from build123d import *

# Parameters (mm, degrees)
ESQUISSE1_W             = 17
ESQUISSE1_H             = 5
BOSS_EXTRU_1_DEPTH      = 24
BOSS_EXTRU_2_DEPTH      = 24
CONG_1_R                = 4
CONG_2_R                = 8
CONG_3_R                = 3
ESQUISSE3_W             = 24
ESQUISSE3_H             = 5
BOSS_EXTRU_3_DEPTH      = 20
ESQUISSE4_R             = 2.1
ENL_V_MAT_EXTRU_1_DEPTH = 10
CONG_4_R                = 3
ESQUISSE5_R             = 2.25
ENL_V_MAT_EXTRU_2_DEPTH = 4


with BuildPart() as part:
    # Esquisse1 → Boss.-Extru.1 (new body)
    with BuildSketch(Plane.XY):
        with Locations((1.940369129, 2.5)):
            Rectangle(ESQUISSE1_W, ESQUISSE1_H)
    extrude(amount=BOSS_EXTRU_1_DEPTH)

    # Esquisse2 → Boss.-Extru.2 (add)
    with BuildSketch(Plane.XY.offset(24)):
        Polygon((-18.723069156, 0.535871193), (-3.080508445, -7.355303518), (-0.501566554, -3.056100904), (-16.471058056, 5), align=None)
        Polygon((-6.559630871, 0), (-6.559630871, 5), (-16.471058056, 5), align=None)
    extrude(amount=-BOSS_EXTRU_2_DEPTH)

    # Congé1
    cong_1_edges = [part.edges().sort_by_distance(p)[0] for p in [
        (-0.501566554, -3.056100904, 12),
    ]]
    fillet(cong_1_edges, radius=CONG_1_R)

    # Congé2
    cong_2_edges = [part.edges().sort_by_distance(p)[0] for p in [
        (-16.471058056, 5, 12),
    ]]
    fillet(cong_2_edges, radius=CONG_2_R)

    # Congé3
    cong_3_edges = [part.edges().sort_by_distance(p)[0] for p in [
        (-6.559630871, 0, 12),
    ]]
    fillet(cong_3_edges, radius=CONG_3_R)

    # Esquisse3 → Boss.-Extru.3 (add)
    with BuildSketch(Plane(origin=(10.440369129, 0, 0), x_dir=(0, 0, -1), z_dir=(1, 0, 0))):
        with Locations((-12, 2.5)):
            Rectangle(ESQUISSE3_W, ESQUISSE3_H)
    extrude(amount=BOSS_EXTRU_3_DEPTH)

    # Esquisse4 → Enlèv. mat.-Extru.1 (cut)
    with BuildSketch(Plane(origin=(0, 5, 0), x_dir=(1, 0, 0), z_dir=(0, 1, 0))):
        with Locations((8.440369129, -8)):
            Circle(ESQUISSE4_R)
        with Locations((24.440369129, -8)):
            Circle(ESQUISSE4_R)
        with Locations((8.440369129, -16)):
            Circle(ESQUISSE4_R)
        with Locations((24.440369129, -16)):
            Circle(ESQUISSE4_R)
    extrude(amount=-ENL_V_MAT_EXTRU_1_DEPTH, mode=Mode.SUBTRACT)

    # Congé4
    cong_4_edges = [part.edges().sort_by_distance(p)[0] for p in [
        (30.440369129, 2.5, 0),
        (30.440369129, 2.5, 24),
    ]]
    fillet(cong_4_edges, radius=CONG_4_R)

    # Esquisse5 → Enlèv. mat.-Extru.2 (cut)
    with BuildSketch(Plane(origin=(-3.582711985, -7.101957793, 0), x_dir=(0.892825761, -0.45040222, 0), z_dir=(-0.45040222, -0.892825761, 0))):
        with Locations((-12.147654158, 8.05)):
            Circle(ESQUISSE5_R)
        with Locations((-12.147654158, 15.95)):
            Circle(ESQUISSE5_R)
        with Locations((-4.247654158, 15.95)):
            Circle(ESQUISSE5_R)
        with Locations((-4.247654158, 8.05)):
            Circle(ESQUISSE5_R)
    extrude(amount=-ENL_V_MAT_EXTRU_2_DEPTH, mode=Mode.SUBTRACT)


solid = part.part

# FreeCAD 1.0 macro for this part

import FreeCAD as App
import Part
import Sketcher


def edges_at(feature, points):
    """Names of the edges that pass closest to the given points."""
    edges = feature.Shape.Edges
    near = lambda p: min(range(len(edges)), key=lambda i: edges[i].distToShape(Part.Vertex(*p))[0])
    return sorted({f"Edge{near(p) + 1}" for p in points})

doc = App.newDocument("Part")
body = doc.addObject("PartDesign::Body", "Body")

# Sketch on XY plane
sketch1 = body.newObject("Sketcher::SketchObject", "Sketch")
sketch1.AttachmentSupport = (doc.getObject("XY_Plane"), [""])
sketch1.MapMode = "FlatFace"
sketch1.addGeometry(Part.LineSegment(App.Vector(-7, 5, 0), App.Vector(-7, 0, 0)), False)
sketch1.addGeometry(Part.LineSegment(App.Vector(-7, 0, 0), App.Vector(10, 0, 0)), False)
sketch1.addGeometry(Part.LineSegment(App.Vector(10, 0, 0), App.Vector(10, 5, 0)), False)
sketch1.addGeometry(Part.LineSegment(App.Vector(10, 5, 0), App.Vector(-7, 5, 0)), False)
sketch1.addConstraint(Sketcher.Constraint("Coincident", 0, 2, 1, 1))
sketch1.addConstraint(Sketcher.Constraint("Coincident", 1, 2, 2, 1))
sketch1.addConstraint(Sketcher.Constraint("Coincident", 2, 2, 3, 1))
sketch1.addConstraint(Sketcher.Constraint("Coincident", 3, 2, 0, 1))
sketch1.addConstraint(Sketcher.Constraint("Vertical", 0))
sketch1.addConstraint(Sketcher.Constraint("Horizontal", 1))
sketch1.addConstraint(Sketcher.Constraint("Vertical", 2))
sketch1.addConstraint(Sketcher.Constraint("Horizontal", 3))
sketch1.addConstraint(Sketcher.Constraint("PointOnObject", 0, 2, -1))
sketch1.addConstraint(Sketcher.Constraint("DistanceX", 1, 1, 1, 2, 17.0))
sketch1.addConstraint(Sketcher.Constraint("DistanceY", 0, 2, 0, 1, 5.0))
sketch1.addConstraint(Sketcher.Constraint("DistanceX", 0, 2, -1, 1, 6.559631))
pad1 = body.newObject("PartDesign::Pad", "Pad")
pad1.Profile = sketch1
pad1.Length = 24

# Sketch on XY plane
sketch2 = body.newObject("Sketcher::SketchObject", "Sketch001")
sketch2.AttachmentSupport = (doc.getObject("XY_Plane"), [""])
sketch2.MapMode = "FlatFace"
sketch2.AttachmentOffset = App.Placement(App.Vector(0, 0, 24), App.Rotation())
sketch2.addGeometry(Part.LineSegment(App.Vector(-19, 1, 0), App.Vector(-3, -7, 0)), False)
sketch2.addGeometry(Part.LineSegment(App.Vector(-3, -7, 0), App.Vector(-1, -3, 0)), False)
sketch2.addGeometry(Part.LineSegment(App.Vector(-1, -3, 0), App.Vector(-7, 0, 0)), False)
sketch2.addGeometry(Part.LineSegment(App.Vector(-7, 0, 0), App.Vector(-7, 5, 0)), False)
sketch2.addGeometry(Part.LineSegment(App.Vector(-7, 5, 0), App.Vector(-16, 5, 0)), False)
sketch2.addGeometry(Part.LineSegment(App.Vector(-16, 5, 0), App.Vector(-19, 1, 0)), False)
sketch2.addConstraint(Sketcher.Constraint("Coincident", 0, 2, 1, 1))
sketch2.addConstraint(Sketcher.Constraint("Coincident", 1, 2, 2, 1))
sketch2.addConstraint(Sketcher.Constraint("Coincident", 2, 2, 3, 1))
sketch2.addConstraint(Sketcher.Constraint("Coincident", 3, 2, 4, 1))
sketch2.addConstraint(Sketcher.Constraint("Coincident", 4, 2, 5, 1))
sketch2.addConstraint(Sketcher.Constraint("Coincident", 5, 2, 0, 1))
sketch2.addConstraint(Sketcher.Constraint("Vertical", 3))
sketch2.addConstraint(Sketcher.Constraint("Horizontal", 4))
sketch2.addConstraint(Sketcher.Constraint("PointOnObject", 2, 2, -1))
sketch2.addConstraint(Sketcher.Constraint("Parallel", 0, 2))
sketch2.addConstraint(Sketcher.Constraint("Perpendicular", 2, 5))
sketch2.addConstraint(Sketcher.Constraint("DistanceY", 3, 1, 3, 2, 5.0))
sketch2.addConstraint(Sketcher.Constraint("Distance", 5, 5.0))
sketch2.addConstraint(Sketcher.Constraint("DistanceY", 1, 2, -1, 1, 3.056101))
sketch2.addConstraint(Sketcher.Constraint("Distance", 1, 5.013391))
sketch2.addConstraint(Sketcher.Constraint("Distance", 2, 6.785271))
sketch2.addConstraint(Sketcher.Constraint("DistanceX", 4, 2, 4, 1, 9.911427))
sketch2.addConstraint(Sketcher.Constraint("DistanceX", 0, 2, -1, 1, 3.080508))
pad2 = body.newObject("PartDesign::Pad", "Pad001")
pad2.Profile = sketch2
pad2.Length = 24
pad2.Reversed = True
doc.recompute()

fillet = body.newObject("PartDesign::Fillet", "Fillet")
fillet.Base = (pad2, edges_at(pad2, [(-0.502, -3.056, 12)]))
fillet.Radius = 4
doc.recompute()

fillet2 = body.newObject("PartDesign::Fillet", "Fillet001")
fillet2.Base = (fillet, edges_at(fillet, [(-16.471, 5, 12)]))
fillet2.Radius = 8
doc.recompute()

fillet3 = body.newObject("PartDesign::Fillet", "Fillet002")
fillet3.Base = (fillet2, edges_at(fillet2, [(-6.56, 0, 12)]))
fillet3.Radius = 3

# Sketch on YZ plane
sketch3 = body.newObject("Sketcher::SketchObject", "Sketch002")
sketch3.AttachmentSupport = (doc.getObject("YZ_Plane"), [""])
sketch3.MapMode = "FlatFace"
sketch3.AttachmentOffset = App.Placement(App.Vector(0, 0, 10.440369), App.Rotation())
sketch3.addGeometry(Part.LineSegment(App.Vector(5, 24, 0), App.Vector(0, 24, 0)), False)
sketch3.addGeometry(Part.LineSegment(App.Vector(0, 24, 0), App.Vector(0, 0, 0)), False)
sketch3.addGeometry(Part.LineSegment(App.Vector(0, 0, 0), App.Vector(5, 0, 0)), False)
sketch3.addGeometry(Part.LineSegment(App.Vector(5, 0, 0), App.Vector(5, 24, 0)), False)
sketch3.addConstraint(Sketcher.Constraint("Coincident", 0, 2, 1, 1))
sketch3.addConstraint(Sketcher.Constraint("Coincident", 1, 2, 2, 1))
sketch3.addConstraint(Sketcher.Constraint("Coincident", 2, 2, 3, 1))
sketch3.addConstraint(Sketcher.Constraint("Coincident", 3, 2, 0, 1))
sketch3.addConstraint(Sketcher.Constraint("Horizontal", 0))
sketch3.addConstraint(Sketcher.Constraint("Vertical", 1))
sketch3.addConstraint(Sketcher.Constraint("Horizontal", 2))
sketch3.addConstraint(Sketcher.Constraint("Vertical", 3))
sketch3.addConstraint(Sketcher.Constraint("Coincident", 1, 2, -1, 1))
sketch3.addConstraint(Sketcher.Constraint("DistanceX", 0, 2, 0, 1, 5.0))
sketch3.addConstraint(Sketcher.Constraint("DistanceY", 1, 2, 1, 1, 24.0))
pad3 = body.newObject("PartDesign::Pad", "Pad002")
pad3.Profile = sketch3
pad3.Length = 20

# Sketch on XZ plane
sketch4 = body.newObject("Sketcher::SketchObject", "Sketch003")
sketch4.AttachmentSupport = (doc.getObject("XZ_Plane"), [""])
sketch4.MapMode = "FlatFace"
sketch4.AttachmentOffset = App.Placement(App.Vector(0, 0, -5), App.Rotation())
sketch4.addGeometry(Part.Circle(App.Vector(8.4, 8, 0), App.Vector(0, 0, 1), 2.1), False)
sketch4.addGeometry(Part.Circle(App.Vector(24.4, 8, 0), App.Vector(0, 0, 1), 2.1), False)
sketch4.addGeometry(Part.Circle(App.Vector(8.4, 16, 0), App.Vector(0, 0, 1), 2.1), False)
sketch4.addGeometry(Part.Circle(App.Vector(24.4, 16, 0), App.Vector(0, 0, 1), 2.1), False)
sketch4.addConstraint(Sketcher.Constraint("Equal", 0, 1))
sketch4.addConstraint(Sketcher.Constraint("Equal", 1, 2))
sketch4.addConstraint(Sketcher.Constraint("Equal", 2, 3))
sketch4.addConstraint(Sketcher.Constraint("Horizontal", 0, 3, 1, 3))
sketch4.addConstraint(Sketcher.Constraint("Horizontal", 2, 3, 3, 3))
sketch4.addConstraint(Sketcher.Constraint("Vertical", 0, 3, 2, 3))
sketch4.addConstraint(Sketcher.Constraint("Vertical", 1, 3, 3, 3))
sketch4.addConstraint(Sketcher.Constraint("Diameter", 0, 4.2))
sketch4.addConstraint(Sketcher.Constraint("DistanceY", -1, 1, 0, 3, 8.0))
sketch4.addConstraint(Sketcher.Constraint("DistanceY", -1, 1, 2, 3, 16.0))
sketch4.addConstraint(Sketcher.Constraint("DistanceX", 0, 3, 1, 3, 16.0))
sketch4.addConstraint(Sketcher.Constraint("DistanceX", -1, 1, 0, 3, 8.440369))
pocket1 = body.newObject("PartDesign::Pocket", "Pocket")
pocket1.Profile = sketch4
pocket1.Length = 10
pocket1.Reversed = True
doc.recompute()

fillet4 = body.newObject("PartDesign::Fillet", "Fillet003")
fillet4.Base = (pocket1, edges_at(pocket1, [(30.44, 2.5, 0), (30.44, 2.5, 24)]))
fillet4.Radius = 3

# Sketch on an angled plane
sketch5 = body.newObject("Sketcher::SketchObject", "Sketch004")
sketch5.Placement = App.Placement(App.Vector(-3.582712, -7.101958, 0), App.Rotation(App.Vector(0.892825761, -0.45040222, 0), App.Vector(0, 0, 0.999999999), App.Vector(-0.45040222, -0.892825761, 0), "ZXY"))
sketch5.addGeometry(Part.Circle(App.Vector(-12.1, 8, 0), App.Vector(0, 0, 1), 2.2), False)
sketch5.addGeometry(Part.Circle(App.Vector(-12.1, 15.9, 0), App.Vector(0, 0, 1), 2.2), False)
sketch5.addGeometry(Part.Circle(App.Vector(-4.2, 15.9, 0), App.Vector(0, 0, 1), 2.2), False)
sketch5.addGeometry(Part.Circle(App.Vector(-4.2, 8, 0), App.Vector(0, 0, 1), 2.2), False)
sketch5.addConstraint(Sketcher.Constraint("Equal", 0, 1))
sketch5.addConstraint(Sketcher.Constraint("Equal", 1, 2))
sketch5.addConstraint(Sketcher.Constraint("Equal", 2, 3))
sketch5.addConstraint(Sketcher.Constraint("Horizontal", 1, 3, 2, 3))
sketch5.addConstraint(Sketcher.Constraint("Horizontal", 0, 3, 3, 3))
sketch5.addConstraint(Sketcher.Constraint("Vertical", 0, 3, 1, 3))
sketch5.addConstraint(Sketcher.Constraint("Vertical", 2, 3, 3, 3))
sketch5.addConstraint(Sketcher.Constraint("Diameter", 0, 4.5))
sketch5.addConstraint(Sketcher.Constraint("DistanceY", 0, 3, 1, 3, 7.9))
sketch5.addConstraint(Sketcher.Constraint("DistanceX", 1, 3, 2, 3, 7.9))
sketch5.addConstraint(Sketcher.Constraint("DistanceY", -1, 1, 0, 3, 8.05))
sketch5.addConstraint(Sketcher.Constraint("DistanceX", 0, 3, -1, 1, 12.147654))
pocket2 = body.newObject("PartDesign::Pocket", "Pocket001")
pocket2.Profile = sketch5
pocket2.Length = 4

doc.recompute()
